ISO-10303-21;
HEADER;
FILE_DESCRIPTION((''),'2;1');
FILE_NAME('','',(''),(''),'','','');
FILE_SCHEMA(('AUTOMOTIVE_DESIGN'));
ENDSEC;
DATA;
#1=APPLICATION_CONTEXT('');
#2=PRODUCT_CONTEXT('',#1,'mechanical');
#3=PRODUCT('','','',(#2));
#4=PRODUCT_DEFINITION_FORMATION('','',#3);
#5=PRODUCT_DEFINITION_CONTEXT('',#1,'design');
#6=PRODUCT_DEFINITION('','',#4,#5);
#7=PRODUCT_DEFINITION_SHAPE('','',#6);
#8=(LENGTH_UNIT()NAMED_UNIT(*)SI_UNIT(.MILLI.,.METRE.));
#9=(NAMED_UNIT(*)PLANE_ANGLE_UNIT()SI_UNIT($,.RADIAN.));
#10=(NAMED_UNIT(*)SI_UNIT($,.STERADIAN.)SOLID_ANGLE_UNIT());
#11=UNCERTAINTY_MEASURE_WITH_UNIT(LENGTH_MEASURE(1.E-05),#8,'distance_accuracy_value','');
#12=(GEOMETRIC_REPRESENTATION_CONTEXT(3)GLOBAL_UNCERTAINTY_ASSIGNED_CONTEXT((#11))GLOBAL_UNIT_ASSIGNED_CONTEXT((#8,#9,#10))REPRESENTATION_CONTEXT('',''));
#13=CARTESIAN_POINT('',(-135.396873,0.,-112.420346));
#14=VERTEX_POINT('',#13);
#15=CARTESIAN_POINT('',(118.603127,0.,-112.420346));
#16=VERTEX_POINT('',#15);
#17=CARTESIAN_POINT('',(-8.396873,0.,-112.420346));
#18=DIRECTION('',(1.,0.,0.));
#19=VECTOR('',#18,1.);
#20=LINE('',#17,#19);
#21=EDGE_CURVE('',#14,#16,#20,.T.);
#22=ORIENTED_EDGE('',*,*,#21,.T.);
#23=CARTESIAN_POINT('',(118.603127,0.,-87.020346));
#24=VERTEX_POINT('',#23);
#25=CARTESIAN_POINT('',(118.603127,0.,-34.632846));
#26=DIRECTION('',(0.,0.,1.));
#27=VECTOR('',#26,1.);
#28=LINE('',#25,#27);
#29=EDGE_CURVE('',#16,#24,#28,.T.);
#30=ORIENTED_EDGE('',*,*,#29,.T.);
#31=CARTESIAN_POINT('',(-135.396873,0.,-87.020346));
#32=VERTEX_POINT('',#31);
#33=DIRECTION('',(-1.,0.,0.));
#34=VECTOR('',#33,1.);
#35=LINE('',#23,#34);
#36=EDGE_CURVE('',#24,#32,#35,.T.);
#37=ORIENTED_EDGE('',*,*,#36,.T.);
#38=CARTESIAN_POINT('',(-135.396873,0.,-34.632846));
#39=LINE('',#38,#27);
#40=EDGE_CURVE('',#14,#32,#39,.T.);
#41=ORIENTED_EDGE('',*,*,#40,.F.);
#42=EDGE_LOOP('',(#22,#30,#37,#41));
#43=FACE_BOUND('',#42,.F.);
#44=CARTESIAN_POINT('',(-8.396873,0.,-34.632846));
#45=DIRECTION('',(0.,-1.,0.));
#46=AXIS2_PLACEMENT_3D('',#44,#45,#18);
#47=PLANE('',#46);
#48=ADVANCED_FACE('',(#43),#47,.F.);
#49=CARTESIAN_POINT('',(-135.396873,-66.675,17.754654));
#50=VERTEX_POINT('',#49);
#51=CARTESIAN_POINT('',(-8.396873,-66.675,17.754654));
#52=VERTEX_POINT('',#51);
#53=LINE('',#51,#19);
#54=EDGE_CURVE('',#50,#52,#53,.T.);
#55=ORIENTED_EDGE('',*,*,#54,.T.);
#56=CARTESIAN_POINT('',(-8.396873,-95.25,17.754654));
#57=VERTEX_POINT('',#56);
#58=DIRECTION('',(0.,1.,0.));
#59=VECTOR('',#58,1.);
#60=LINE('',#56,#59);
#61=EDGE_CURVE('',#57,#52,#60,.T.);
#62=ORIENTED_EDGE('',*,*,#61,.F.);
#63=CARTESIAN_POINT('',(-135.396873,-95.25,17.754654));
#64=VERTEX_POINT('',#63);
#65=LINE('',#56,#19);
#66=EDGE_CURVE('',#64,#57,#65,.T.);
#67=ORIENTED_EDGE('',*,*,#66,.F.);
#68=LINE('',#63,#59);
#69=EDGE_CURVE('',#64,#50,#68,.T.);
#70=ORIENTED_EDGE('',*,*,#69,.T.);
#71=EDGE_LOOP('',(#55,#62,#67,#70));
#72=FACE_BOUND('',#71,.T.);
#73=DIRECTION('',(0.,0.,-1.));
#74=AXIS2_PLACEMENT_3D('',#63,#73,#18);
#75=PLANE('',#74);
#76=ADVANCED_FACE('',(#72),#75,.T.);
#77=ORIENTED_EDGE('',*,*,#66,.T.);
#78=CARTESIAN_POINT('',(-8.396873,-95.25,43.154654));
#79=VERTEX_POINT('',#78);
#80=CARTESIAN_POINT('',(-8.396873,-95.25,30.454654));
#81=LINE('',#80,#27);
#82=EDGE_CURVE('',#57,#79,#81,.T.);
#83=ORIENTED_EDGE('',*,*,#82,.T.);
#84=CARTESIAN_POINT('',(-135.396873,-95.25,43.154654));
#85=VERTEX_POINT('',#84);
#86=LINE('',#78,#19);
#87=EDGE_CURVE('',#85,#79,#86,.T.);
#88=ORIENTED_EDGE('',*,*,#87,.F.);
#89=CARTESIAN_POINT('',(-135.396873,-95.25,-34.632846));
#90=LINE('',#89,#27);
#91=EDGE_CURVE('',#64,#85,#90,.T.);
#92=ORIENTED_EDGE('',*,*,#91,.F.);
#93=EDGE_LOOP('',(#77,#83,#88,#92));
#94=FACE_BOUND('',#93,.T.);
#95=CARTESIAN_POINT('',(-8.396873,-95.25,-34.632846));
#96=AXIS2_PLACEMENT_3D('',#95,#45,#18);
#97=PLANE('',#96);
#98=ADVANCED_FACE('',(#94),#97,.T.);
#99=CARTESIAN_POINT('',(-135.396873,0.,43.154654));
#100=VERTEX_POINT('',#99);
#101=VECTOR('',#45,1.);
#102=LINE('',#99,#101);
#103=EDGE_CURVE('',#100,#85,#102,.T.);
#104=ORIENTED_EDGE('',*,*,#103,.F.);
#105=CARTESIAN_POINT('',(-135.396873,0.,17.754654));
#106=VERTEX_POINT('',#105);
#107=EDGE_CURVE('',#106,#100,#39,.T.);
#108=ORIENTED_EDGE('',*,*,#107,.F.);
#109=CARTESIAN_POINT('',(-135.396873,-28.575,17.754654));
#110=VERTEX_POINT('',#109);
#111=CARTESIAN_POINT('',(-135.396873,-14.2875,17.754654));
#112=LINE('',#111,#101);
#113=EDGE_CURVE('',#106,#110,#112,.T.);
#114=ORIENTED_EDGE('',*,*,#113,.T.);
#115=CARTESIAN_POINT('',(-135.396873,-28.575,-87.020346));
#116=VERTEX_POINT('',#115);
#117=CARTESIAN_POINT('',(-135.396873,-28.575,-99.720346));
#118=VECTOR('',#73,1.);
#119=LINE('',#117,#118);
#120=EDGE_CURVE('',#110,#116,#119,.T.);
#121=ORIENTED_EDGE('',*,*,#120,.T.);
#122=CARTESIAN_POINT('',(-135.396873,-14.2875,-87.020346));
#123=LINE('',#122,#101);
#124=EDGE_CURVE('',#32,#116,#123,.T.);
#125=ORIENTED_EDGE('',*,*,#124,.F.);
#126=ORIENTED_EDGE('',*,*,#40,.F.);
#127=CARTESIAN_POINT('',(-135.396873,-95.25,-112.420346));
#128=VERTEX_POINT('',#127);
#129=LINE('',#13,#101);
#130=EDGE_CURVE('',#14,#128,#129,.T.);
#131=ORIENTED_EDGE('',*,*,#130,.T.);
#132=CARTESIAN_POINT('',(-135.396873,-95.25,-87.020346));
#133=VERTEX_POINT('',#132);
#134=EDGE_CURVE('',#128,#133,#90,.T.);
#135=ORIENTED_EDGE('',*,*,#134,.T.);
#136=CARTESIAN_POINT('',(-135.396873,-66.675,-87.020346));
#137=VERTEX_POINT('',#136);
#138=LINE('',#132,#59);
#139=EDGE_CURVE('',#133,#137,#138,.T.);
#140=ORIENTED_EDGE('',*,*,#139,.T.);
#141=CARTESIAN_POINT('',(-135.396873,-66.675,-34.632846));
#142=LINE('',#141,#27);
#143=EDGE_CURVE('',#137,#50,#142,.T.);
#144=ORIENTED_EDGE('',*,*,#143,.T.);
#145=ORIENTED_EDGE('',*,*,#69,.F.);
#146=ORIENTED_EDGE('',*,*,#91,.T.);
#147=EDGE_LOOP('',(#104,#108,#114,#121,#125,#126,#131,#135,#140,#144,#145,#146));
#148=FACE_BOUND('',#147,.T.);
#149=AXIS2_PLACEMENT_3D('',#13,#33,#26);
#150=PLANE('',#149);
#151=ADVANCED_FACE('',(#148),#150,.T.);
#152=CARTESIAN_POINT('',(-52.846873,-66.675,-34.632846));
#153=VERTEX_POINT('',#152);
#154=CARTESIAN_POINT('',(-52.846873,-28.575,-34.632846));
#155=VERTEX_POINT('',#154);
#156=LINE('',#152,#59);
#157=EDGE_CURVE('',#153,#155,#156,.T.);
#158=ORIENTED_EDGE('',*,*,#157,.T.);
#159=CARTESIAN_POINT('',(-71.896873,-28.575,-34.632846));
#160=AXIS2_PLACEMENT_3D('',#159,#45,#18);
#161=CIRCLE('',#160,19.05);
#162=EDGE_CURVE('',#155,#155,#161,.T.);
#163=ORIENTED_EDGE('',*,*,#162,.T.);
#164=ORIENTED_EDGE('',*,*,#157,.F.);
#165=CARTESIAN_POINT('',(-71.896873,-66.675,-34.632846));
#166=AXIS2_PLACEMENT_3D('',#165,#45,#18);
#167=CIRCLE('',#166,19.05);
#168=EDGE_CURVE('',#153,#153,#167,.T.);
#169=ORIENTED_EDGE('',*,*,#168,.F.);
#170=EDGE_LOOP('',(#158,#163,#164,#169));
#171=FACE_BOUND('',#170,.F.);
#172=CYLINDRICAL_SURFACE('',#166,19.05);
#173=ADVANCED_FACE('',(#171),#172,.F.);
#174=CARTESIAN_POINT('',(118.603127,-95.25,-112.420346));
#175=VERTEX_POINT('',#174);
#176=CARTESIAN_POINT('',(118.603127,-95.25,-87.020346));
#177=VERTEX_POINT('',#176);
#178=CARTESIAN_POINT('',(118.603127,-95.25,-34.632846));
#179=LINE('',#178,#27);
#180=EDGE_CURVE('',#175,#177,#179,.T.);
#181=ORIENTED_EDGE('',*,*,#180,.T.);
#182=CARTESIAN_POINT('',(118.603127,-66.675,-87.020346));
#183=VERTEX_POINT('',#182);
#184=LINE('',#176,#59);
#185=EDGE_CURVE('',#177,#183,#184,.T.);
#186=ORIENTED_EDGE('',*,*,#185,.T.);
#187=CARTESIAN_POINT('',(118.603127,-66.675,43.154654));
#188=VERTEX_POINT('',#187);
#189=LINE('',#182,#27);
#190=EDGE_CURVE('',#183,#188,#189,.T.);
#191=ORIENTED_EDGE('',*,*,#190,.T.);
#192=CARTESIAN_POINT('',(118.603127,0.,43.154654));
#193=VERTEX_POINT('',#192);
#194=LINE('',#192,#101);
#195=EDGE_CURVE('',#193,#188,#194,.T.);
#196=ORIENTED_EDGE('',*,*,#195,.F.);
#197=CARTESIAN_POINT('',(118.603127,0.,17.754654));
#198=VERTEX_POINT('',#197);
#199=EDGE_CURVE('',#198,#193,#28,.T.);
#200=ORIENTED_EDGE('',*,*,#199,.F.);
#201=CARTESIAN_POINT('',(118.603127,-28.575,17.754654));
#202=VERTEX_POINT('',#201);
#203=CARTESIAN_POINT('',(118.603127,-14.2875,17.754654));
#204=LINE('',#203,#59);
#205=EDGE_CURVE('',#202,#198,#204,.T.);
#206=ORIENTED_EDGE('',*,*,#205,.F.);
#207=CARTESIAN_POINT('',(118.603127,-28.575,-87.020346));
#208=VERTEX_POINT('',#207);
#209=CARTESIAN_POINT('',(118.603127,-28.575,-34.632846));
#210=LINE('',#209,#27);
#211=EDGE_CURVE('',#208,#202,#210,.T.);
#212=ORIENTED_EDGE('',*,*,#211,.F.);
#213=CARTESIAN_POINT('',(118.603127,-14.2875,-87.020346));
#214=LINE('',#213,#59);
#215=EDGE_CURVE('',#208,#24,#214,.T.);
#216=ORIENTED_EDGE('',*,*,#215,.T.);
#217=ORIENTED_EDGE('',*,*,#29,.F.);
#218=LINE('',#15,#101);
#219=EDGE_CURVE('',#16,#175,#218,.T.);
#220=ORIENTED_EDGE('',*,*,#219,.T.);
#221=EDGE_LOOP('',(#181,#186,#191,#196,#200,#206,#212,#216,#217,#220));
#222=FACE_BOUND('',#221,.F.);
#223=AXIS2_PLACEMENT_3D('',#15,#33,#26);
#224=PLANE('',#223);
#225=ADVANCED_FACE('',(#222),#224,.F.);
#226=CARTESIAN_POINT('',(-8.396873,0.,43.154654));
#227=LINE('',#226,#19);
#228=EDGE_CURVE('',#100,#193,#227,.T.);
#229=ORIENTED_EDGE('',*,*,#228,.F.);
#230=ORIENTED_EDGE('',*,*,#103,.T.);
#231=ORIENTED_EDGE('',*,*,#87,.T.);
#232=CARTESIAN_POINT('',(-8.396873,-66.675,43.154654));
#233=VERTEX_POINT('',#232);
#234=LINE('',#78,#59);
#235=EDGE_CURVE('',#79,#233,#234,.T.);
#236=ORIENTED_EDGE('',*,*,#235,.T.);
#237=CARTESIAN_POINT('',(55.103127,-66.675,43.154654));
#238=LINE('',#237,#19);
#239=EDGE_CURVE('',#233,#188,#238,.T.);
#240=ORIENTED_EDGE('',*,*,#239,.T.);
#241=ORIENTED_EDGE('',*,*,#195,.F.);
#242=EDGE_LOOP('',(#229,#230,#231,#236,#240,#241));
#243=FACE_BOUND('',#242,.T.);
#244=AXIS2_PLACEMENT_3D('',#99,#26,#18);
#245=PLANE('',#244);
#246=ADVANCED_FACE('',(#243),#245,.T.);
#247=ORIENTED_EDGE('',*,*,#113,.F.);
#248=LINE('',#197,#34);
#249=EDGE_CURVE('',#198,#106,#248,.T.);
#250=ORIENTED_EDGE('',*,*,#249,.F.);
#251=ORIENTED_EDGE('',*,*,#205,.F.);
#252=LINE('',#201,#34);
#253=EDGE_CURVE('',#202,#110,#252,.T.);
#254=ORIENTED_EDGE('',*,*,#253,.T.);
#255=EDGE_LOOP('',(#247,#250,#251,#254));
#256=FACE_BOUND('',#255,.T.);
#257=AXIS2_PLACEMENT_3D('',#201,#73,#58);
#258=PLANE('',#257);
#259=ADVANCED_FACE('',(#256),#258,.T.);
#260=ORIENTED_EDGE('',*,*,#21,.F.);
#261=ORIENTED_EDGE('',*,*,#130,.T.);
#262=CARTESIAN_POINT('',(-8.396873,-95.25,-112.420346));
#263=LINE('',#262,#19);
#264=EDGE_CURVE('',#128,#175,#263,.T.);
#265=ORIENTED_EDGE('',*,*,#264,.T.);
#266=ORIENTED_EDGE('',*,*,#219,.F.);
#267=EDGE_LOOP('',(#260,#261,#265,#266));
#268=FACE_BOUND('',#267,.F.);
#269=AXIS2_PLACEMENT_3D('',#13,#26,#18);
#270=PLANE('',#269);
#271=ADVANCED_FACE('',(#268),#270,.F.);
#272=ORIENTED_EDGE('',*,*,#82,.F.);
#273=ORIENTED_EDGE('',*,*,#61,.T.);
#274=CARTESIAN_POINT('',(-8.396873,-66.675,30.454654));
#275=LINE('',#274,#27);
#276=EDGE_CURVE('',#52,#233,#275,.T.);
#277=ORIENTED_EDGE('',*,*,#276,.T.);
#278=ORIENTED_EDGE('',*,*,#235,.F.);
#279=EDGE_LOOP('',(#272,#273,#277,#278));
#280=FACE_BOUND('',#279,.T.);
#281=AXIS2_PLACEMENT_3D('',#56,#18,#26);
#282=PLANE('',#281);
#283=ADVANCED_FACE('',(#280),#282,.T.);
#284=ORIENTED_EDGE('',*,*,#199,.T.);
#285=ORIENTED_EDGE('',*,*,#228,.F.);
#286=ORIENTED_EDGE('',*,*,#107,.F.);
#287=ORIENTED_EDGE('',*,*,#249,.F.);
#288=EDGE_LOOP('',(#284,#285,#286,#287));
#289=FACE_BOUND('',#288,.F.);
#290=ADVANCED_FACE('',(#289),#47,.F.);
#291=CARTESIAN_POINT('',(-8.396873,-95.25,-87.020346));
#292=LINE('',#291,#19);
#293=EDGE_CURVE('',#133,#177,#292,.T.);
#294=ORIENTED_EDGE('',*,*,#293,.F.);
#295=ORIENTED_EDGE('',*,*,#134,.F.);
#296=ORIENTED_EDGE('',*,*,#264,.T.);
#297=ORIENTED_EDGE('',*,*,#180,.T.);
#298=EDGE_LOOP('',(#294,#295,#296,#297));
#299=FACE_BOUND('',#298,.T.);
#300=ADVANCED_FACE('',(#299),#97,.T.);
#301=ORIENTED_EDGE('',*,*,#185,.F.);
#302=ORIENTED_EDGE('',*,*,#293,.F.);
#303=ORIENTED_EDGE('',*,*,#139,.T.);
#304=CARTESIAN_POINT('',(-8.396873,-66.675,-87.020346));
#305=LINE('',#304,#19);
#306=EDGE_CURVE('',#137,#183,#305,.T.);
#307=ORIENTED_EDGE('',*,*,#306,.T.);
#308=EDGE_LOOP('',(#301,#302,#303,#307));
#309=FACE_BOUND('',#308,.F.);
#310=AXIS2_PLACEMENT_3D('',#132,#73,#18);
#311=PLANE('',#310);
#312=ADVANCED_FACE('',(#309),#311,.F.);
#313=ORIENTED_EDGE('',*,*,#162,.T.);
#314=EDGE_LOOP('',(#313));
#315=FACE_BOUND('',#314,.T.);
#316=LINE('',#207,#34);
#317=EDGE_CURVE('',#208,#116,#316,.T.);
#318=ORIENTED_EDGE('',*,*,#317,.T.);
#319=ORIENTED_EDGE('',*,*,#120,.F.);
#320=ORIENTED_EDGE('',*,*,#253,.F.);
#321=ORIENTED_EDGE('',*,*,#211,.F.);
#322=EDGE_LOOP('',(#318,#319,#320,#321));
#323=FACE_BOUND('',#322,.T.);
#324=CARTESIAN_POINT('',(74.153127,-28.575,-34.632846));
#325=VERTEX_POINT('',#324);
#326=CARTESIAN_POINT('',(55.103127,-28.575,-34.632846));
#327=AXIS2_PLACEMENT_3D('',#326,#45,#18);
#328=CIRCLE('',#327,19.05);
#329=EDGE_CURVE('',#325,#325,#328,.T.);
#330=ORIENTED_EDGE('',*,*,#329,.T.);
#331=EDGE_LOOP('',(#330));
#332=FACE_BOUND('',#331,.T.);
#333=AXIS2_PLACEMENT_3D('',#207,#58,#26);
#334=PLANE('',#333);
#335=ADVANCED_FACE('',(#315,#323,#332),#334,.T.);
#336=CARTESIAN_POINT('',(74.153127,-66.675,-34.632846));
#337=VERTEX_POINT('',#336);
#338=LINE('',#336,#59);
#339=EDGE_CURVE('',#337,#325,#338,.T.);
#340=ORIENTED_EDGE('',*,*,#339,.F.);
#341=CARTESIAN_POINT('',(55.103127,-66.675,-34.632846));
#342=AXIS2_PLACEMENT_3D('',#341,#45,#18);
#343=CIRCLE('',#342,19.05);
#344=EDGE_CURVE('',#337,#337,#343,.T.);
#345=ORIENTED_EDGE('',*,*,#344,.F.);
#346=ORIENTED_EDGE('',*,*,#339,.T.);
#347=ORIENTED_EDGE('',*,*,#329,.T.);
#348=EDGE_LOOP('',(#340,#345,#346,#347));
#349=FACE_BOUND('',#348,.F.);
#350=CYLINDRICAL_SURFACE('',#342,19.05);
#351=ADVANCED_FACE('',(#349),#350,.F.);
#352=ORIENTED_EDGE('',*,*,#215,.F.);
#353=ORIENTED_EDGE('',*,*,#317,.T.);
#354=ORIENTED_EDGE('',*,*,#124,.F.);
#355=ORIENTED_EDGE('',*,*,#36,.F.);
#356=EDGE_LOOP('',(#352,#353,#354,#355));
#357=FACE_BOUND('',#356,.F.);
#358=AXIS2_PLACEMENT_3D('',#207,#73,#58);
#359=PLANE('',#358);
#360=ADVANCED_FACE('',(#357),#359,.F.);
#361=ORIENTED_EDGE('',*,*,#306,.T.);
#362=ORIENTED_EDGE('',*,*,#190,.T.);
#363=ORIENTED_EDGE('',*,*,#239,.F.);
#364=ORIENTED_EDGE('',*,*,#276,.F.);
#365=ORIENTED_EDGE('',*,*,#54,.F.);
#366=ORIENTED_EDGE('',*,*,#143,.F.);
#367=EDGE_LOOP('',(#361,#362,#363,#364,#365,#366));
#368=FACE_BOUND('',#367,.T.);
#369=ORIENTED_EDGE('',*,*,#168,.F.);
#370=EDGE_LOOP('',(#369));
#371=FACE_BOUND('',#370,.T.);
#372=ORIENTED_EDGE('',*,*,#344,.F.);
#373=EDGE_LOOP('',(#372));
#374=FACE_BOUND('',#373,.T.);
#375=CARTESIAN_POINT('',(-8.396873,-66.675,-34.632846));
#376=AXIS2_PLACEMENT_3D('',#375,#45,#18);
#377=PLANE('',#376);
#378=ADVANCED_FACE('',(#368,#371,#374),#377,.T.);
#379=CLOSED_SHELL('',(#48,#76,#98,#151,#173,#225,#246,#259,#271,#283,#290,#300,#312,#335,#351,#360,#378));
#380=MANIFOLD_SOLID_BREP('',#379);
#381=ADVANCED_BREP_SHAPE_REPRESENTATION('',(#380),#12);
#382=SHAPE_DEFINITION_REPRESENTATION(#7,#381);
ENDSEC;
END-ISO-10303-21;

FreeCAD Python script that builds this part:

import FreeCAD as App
import Part
import Sketcher
Q = App.Units.Quantity

doc = App.newDocument("Part")
body = doc.addObject("PartDesign::Body", "Body")

# Sketch on XZ plane
sketch1 = body.newObject("Sketcher::SketchObject", "Sketch")
sketch1.AttachmentSupport = (doc.getObject("XZ_Plane"), [""])
sketch1.MapMode = "FlatFace"
sketch1.addGeometry(Part.LineSegment(App.Vector(-135, 43, 0), App.Vector(-135, -112, 0)), False)
sketch1.addGeometry(Part.LineSegment(App.Vector(-135, -112, 0), App.Vector(119, -112, 0)), False)
sketch1.addGeometry(Part.LineSegment(App.Vector(119, -112, 0), App.Vector(119, 43, 0)), False)
sketch1.addGeometry(Part.LineSegment(App.Vector(119, 43, 0), App.Vector(-135, 43, 0)), False)
sketch1.addConstraint(Sketcher.Constraint("Coincident", 0, 2, 1, 1))
sketch1.addConstraint(Sketcher.Constraint("Coincident", 1, 2, 2, 1))
sketch1.addConstraint(Sketcher.Constraint("Coincident", 2, 2, 3, 1))
sketch1.addConstraint(Sketcher.Constraint("Coincident", 3, 2, 0, 1))
sketch1.addConstraint(Sketcher.Constraint("Vertical", 0))
sketch1.addConstraint(Sketcher.Constraint("Horizontal", 1))
sketch1.addConstraint(Sketcher.Constraint("Vertical", 2))
sketch1.addConstraint(Sketcher.Constraint("Horizontal", 3))
sketch1.addConstraint(Sketcher.Constraint("DistanceX", 1, 1, 1, 2, Q("10 in")))
sketch1.addConstraint(Sketcher.Constraint("DistanceY", 0, 2, 0, 1, Q("6.125 in")))
sketch1.addConstraint(Sketcher.Constraint("DistanceX", 0, 2, -1, 1, 135.396873))
sketch1.addConstraint(Sketcher.Constraint("DistanceY", 0, 2, -1, 1, 112.420346))
pad1 = body.newObject("PartDesign::Pad", "Pad")
pad1.Profile = sketch1
pad1.Length = Q("3.75 in")

# Sketch on XZ plane
sketch2 = body.newObject("Sketcher::SketchObject", "Sketch001")
sketch2.AttachmentSupport = (doc.getObject("XZ_Plane"), [""])
sketch2.MapMode = "FlatFace"
sketch2.AttachmentOffset = App.Placement(App.Vector(0, 0, 3.75 * 25.4), App.Rotation())
sketch2.addGeometry(Part.LineSegment(App.Vector(-135, 18, 0), App.Vector(-135, -87, 0)), False)
sketch2.addGeometry(Part.LineSegment(App.Vector(-135, -87, 0), App.Vector(119, -87, 0)), False)
sketch2.addGeometry(Part.LineSegment(App.Vector(119, -87, 0), App.Vector(119, 18, 0)), False)
sketch2.addGeometry(Part.LineSegment(App.Vector(119, 18, 0), App.Vector(-135, 18, 0)), False)
sketch2.addConstraint(Sketcher.Constraint("Coincident", 0, 2, 1, 1))
sketch2.addConstraint(Sketcher.Constraint("Coincident", 1, 2, 2, 1))
sketch2.addConstraint(Sketcher.Constraint("Coincident", 2, 2, 3, 1))
sketch2.addConstraint(Sketcher.Constraint("Coincident", 3, 2, 0, 1))
sketch2.addConstraint(Sketcher.Constraint("Vertical", 0))
sketch2.addConstraint(Sketcher.Constraint("Horizontal", 1))
sketch2.addConstraint(Sketcher.Constraint("Vertical", 2))
sketch2.addConstraint(Sketcher.Constraint("Horizontal", 3))
sketch2.addConstraint(Sketcher.Constraint("DistanceX", 1, 1, 1, 2, Q("10 in")))
sketch2.addConstraint(Sketcher.Constraint("DistanceY", 0, 2, 0, 1, Q("4.125 in")))
sketch2.addConstraint(Sketcher.Constraint("DistanceX", 0, 2, -1, 1, 135.396873))
sketch2.addConstraint(Sketcher.Constraint("DistanceY", 0, 2, -1, 1, 87.020346))
pocket1 = body.newObject("PartDesign::Pocket", "Pocket")
pocket1.Profile = sketch2
pocket1.Length = Q("1.125 in")

# Sketch on XZ plane
sketch3 = body.newObject("Sketcher::SketchObject", "Sketch002")
sketch3.AttachmentSupport = (doc.getObject("XZ_Plane"), [""])
sketch3.MapMode = "FlatFace"
sketch3.AttachmentOffset = App.Placement(App.Vector(0, 0, 3.75 * 25.4), App.Rotation())
sketch3.addGeometry(Part.LineSegment(App.Vector(-8, 43, 0), App.Vector(-8, 18, 0)), False)
sketch3.addGeometry(Part.LineSegment(App.Vector(-8, 18, 0), App.Vector(119, 18, 0)), False)
sketch3.addGeometry(Part.LineSegment(App.Vector(119, 18, 0), App.Vector(119, 43, 0)), False)
sketch3.addGeometry(Part.LineSegment(App.Vector(119, 43, 0), App.Vector(-8, 43, 0)), False)
sketch3.addConstraint(Sketcher.Constraint("Coincident", 0, 2, 1, 1))
sketch3.addConstraint(Sketcher.Constraint("Coincident", 1, 2, 2, 1))
sketch3.addConstraint(Sketcher.Constraint("Coincident", 2, 2, 3, 1))
sketch3.addConstraint(Sketcher.Constraint("Coincident", 3, 2, 0, 1))
sketch3.addConstraint(Sketcher.Constraint("Vertical", 0))
sketch3.addConstraint(Sketcher.Constraint("Horizontal", 1))
sketch3.addConstraint(Sketcher.Constraint("Vertical", 2))
sketch3.addConstraint(Sketcher.Constraint("Horizontal", 3))
sketch3.addConstraint(Sketcher.Constraint("DistanceX", 1, 1, 1, 2, Q("5 in")))
sketch3.addConstraint(Sketcher.Constraint("DistanceY", 0, 2, 0, 1, Q("1 in")))
sketch3.addConstraint(Sketcher.Constraint("DistanceX", 0, 2, -1, 1, 8.396873))
sketch3.addConstraint(Sketcher.Constraint("DistanceY", -1, 1, 0, 2, 17.754654))
pocket2 = body.newObject("PartDesign::Pocket", "Pocket001")
pocket2.Profile = sketch3
pocket2.Length = Q("1.125 in")

# Sketch on XZ plane
sketch4 = body.newObject("Sketcher::SketchObject", "Sketch003")
sketch4.AttachmentSupport = (doc.getObject("XZ_Plane"), [""])
sketch4.MapMode = "FlatFace"
sketch4.AttachmentOffset = App.Placement(App.Vector(0, 0, 2.625 * 25.4), App.Rotation())
sketch4.addGeometry(Part.Circle(App.Vector(55, -35, 0), App.Vector(0, 0, 1), 19), False)
sketch4.addGeometry(Part.Circle(App.Vector(-72, -35, 0), App.Vector(0, 0, 1), 19), False)
sketch4.addConstraint(Sketcher.Constraint("Equal", 0, 1))
sketch4.addConstraint(Sketcher.Constraint("Horizontal", 0, 3, 1, 3))
sketch4.addConstraint(Sketcher.Constraint("Diameter", 0, Q("1.5 in")))
sketch4.addConstraint(Sketcher.Constraint("DistanceX", 1, 3, 0, 3, Q("5 in")))
sketch4.addConstraint(Sketcher.Constraint("DistanceX", -1, 1, 0, 3, 55.103127))
sketch4.addConstraint(Sketcher.Constraint("DistanceY", 0, 3, -1, 1, 34.632846))
pocket3 = body.newObject("PartDesign::Pocket", "Pocket002")
pocket3.Profile = sketch4
pocket3.Type = "ThroughAll"

# Sketch on YZ plane
sketch5 = body.newObject("Sketcher::SketchObject", "Sketch004")
sketch5.AttachmentSupport = (doc.getObject("YZ_Plane"), [""])
sketch5.MapMode = "FlatFace"
sketch5.AttachmentOffset = App.Placement(App.Vector(0, 0, 118.603127), App.Rotation())
sketch5.addGeometry(Part.LineSegment(App.Vector(-29, 18, 0), App.Vector(-29, -87, 0)), False)
sketch5.addGeometry(Part.LineSegment(App.Vector(-29, -87, 0), App.Vector(0, -87, 0)), False)
sketch5.addGeometry(Part.LineSegment(App.Vector(0, -87, 0), App.Vector(0, 18, 0)), False)
sketch5.addGeometry(Part.LineSegment(App.Vector(0, 18, 0), App.Vector(-29, 18, 0)), False)
sketch5.addConstraint(Sketcher.Constraint("Coincident", 0, 2, 1, 1))
sketch5.addConstraint(Sketcher.Constraint("Coincident", 1, 2, 2, 1))
sketch5.addConstraint(Sketcher.Constraint("Coincident", 2, 2, 3, 1))
sketch5.addConstraint(Sketcher.Constraint("Coincident", 3, 2, 0, 1))
sketch5.addConstraint(Sketcher.Constraint("Vertical", 0))
sketch5.addConstraint(Sketcher.Constraint("Horizontal", 1))
sketch5.addConstraint(Sketcher.Constraint("Vertical", 2))
sketch5.addConstraint(Sketcher.Constraint("Horizontal", 3))
sketch5.addConstraint(Sketcher.Constraint("PointOnObject", 1, 2, -2))
sketch5.addConstraint(Sketcher.Constraint("DistanceX", 1, 1, 1, 2, Q("1.125 in")))
sketch5.addConstraint(Sketcher.Constraint("DistanceY", 0, 2, 0, 1, Q("4.125 in")))
sketch5.addConstraint(Sketcher.Constraint("DistanceY", 0, 2, -1, 1, 87.020346))
pocket4 = body.newObject("PartDesign::Pocket", "Pocket003")
pocket4.Profile = sketch5
pocket4.Type = "ThroughAll"

doc.recompute()
